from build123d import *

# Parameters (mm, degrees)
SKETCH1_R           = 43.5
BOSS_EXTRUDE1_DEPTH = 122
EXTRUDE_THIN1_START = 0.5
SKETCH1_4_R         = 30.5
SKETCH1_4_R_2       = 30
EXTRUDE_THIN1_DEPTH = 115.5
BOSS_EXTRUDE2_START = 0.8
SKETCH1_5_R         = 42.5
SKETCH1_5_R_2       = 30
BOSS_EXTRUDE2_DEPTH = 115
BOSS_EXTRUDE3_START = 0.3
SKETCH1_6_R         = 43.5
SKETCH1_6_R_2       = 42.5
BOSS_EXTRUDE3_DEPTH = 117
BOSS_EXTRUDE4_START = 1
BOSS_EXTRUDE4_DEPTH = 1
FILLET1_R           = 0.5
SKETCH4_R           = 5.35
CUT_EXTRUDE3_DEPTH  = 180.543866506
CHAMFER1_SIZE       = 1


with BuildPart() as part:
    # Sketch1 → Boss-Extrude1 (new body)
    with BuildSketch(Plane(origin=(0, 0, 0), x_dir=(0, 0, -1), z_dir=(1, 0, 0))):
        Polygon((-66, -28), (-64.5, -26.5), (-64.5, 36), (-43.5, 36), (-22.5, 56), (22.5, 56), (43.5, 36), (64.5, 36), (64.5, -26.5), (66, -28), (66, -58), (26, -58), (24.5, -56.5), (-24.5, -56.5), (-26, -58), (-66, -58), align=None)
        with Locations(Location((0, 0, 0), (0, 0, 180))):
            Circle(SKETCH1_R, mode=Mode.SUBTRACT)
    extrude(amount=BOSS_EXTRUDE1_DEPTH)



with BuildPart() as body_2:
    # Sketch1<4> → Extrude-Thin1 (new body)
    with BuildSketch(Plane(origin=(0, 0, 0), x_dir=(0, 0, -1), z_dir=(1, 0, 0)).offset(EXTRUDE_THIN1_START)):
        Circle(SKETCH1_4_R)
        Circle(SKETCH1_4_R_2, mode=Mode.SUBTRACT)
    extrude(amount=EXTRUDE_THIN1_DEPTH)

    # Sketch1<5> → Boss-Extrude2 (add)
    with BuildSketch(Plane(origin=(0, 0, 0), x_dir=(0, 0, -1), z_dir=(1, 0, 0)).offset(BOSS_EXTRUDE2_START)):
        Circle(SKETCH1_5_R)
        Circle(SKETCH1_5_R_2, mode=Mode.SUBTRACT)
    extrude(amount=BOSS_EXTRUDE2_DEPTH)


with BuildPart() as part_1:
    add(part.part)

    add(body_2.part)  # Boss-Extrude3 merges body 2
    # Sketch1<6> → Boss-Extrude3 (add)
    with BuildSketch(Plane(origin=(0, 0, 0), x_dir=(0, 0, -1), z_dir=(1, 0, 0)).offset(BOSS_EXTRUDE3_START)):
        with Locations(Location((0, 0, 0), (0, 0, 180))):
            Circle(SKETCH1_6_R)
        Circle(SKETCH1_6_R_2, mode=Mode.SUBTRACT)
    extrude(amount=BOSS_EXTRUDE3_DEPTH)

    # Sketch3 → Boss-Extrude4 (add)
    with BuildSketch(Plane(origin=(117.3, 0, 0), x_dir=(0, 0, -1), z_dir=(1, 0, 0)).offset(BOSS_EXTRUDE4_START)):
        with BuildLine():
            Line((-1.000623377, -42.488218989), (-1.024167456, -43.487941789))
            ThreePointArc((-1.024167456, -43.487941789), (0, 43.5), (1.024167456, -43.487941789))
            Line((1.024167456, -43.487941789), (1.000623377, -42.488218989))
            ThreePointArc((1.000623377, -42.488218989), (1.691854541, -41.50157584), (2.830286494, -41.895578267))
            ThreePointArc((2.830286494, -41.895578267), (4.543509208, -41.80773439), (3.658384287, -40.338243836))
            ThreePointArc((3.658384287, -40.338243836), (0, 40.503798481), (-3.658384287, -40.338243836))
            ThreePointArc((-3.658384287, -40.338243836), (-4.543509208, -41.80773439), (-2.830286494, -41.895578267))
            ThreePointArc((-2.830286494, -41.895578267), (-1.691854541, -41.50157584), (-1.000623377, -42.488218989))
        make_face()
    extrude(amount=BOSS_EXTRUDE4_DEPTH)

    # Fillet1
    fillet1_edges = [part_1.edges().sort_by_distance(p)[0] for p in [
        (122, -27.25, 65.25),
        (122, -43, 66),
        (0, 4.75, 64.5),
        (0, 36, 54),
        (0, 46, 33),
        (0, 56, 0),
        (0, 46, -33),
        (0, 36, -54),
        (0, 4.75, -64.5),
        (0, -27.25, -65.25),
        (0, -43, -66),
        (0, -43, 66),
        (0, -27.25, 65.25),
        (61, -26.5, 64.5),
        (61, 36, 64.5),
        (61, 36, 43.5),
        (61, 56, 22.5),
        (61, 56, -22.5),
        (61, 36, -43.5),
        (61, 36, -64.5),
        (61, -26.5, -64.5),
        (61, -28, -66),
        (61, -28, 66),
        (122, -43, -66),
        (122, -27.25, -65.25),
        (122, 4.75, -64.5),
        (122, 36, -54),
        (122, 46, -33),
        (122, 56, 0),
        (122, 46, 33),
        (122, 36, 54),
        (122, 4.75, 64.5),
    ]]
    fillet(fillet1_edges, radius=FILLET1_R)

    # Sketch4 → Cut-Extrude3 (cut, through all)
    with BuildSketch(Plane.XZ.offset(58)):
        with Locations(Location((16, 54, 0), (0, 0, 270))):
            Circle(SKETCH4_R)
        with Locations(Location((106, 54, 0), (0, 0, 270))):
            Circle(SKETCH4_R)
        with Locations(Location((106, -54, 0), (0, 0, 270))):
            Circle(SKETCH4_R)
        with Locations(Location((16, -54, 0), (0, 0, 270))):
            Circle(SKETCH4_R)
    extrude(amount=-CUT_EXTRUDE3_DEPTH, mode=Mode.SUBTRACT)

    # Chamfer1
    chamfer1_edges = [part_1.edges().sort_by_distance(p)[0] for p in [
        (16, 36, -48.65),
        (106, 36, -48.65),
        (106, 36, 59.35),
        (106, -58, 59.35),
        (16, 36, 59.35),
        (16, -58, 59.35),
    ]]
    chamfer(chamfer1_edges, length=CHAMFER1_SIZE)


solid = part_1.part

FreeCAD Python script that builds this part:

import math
import FreeCAD as App
import Part
import Sketcher

V = App.Vector
Q = App.Units.Quantity


def edges_at(feature, points):
    """Names of the edges that pass closest to the given points."""
    edges = feature.Shape.Edges
    near = lambda p: min(range(len(edges)), key=lambda i: edges[i].distToShape(Part.Vertex(*p))[0])
    return sorted({f"Edge{near(p) + 1}" for p in points})

doc = App.newDocument("Part")
body = doc.addObject("PartDesign::Body", "Body")

# Sketch on YZ plane
sketch1 = body.newObject("Sketcher::SketchObject", "Sketch")
sketch1.AttachmentSupport = (doc.getObject("YZ_Plane"), [""])
sketch1.MapMode = "FlatFace"
sketch1.addGeometry([
    Part.LineSegment(V(-26.5, 64.5, 0), V(-28, 66, 0)),  # 0
    Part.LineSegment(V(-28, 66, 0), V(-58, 66, 0)),  # 1
    Part.LineSegment(V(-58, 66, 0), V(-58, 26, 0)),  # 2
    Part.LineSegment(V(-58, 26, 0), V(-56.5, 24.5, 0)),  # 3
    Part.LineSegment(V(-56.5, 24.5, 0), V(-56.5, -24.5, 0)),  # 4
    Part.LineSegment(V(-56.5, -24.5, 0), V(-58, -26, 0)),  # 5
    Part.LineSegment(V(-58, -26, 0), V(-58, -66, 0)),  # 6
    Part.LineSegment(V(-58, -66, 0), V(-28, -66, 0)),  # 7
    Part.LineSegment(V(-28, -66, 0), V(-26.5, -64.5, 0)),  # 8
    Part.LineSegment(V(-26.5, -64.5, 0), V(36, -64.5, 0)),  # 9
    Part.LineSegment(V(36, -64.5, 0), V(36, -43.5, 0)),  # 10
    Part.LineSegment(V(36, -43.5, 0), V(56, -22.5, 0)),  # 11
    Part.LineSegment(V(56, -22.5, 0), V(56, 22.5, 0)),  # 12
    Part.LineSegment(V(56, 22.5, 0), V(36, 43.5, 0)),  # 13
    Part.LineSegment(V(36, 43.5, 0), V(36, 64.5, 0)),  # 14
    Part.LineSegment(V(36, 64.5, 0), V(-26.5, 64.5, 0)),  # 15
    Part.Circle(V(0, 0, 0), V(0, 0, 1), 43.5),  # 16
], False)
sketch1.addConstraint([
    Sketcher.Constraint("Coincident", 0, 2, 1, 1),
    Sketcher.Constraint("Coincident", 1, 2, 2, 1),
    Sketcher.Constraint("Coincident", 2, 2, 3, 1),
    Sketcher.Constraint("Coincident", 3, 2, 4, 1),
    Sketcher.Constraint("Coincident", 4, 2, 5, 1),
    Sketcher.Constraint("Coincident", 5, 2, 6, 1),
    Sketcher.Constraint("Coincident", 6, 2, 7, 1),
    Sketcher.Constraint("Coincident", 7, 2, 8, 1),
    Sketcher.Constraint("Coincident", 8, 2, 9, 1),
    Sketcher.Constraint("Coincident", 9, 2, 10, 1),
    Sketcher.Constraint("Coincident", 10, 2, 11, 1),
    Sketcher.Constraint("Coincident", 11, 2, 12, 1),
    Sketcher.Constraint("Coincident", 12, 2, 13, 1),
    Sketcher.Constraint("Coincident", 13, 2, 14, 1),
    Sketcher.Constraint("Coincident", 14, 2, 15, 1),
    Sketcher.Constraint("Coincident", 15, 2, 0, 1),
    Sketcher.Constraint("Horizontal", 1),
    Sketcher.Constraint("Vertical", 2),
    Sketcher.Constraint("Vertical", 4),
    Sketcher.Constraint("Vertical", 6),
    Sketcher.Constraint("Horizontal", 7),
    Sketcher.Constraint("Horizontal", 9),
    Sketcher.Constraint("Vertical", 10),
    Sketcher.Constraint("Vertical", 12),
    Sketcher.Constraint("Vertical", 14),
    Sketcher.Constraint("Horizontal", 15),
    Sketcher.Constraint("Coincident", 16, 3, -1, 1),
    Sketcher.Constraint("Symmetric", 2, 2, 5, 2, -1),
    Sketcher.Constraint("Symmetric", 0, 2, 7, 2, -1),
    Sketcher.Constraint("Symmetric", 10, 2, 13, 2, -1),
    Sketcher.Constraint("Symmetric", 8, 2, 15, 2, -1),
    Sketcher.Constraint("Parallel", 0, 3),
    Sketcher.Constraint("Perpendicular", 3, 5),
    Sketcher.Constraint("Parallel", 5, 8),
    Sketcher.Constraint("Equal", 0, 3),
    Sketcher.Constraint("Equal", 11, 13),
    Sketcher.Constraint("Diameter", 16, Q("87 mm")),
    Sketcher.Constraint("DistanceX", 1, 2, 1, 1, Q("30 mm")),
    Sketcher.Constraint("DistanceY", 2, 2, 2, 1, Q("40 mm")),
    Sketcher.Constraint("DistanceY", 4, 2, 4, 1, Q("49 mm")),
    Sketcher.Constraint("DistanceY", 10, 1, 10, 2, Q("21 mm")),
    Sketcher.Constraint("DistanceY", 12, 1, 12, 2, Q("45 mm")),
    Sketcher.Constraint("Distance", 11, Q("29 mm")),
    Sketcher.Constraint("DistanceX", 9, 1, 9, 2, Q("62.5 mm")),
    Sketcher.Constraint("DistanceX", 0, 2, -1, 1, Q("28 mm")),
    Sketcher.Constraint("DistanceY", -1, 1, 0, 2, Q("66 mm")),
])
pad1 = body.newObject("PartDesign::Pad", "Pad")
pad1.Profile = sketch1
pad1.Length = 122
body2 = doc.addObject("PartDesign::Body", "Body001")

# Sketch on YZ plane
sketch2 = body2.newObject("Sketcher::SketchObject", "Sketch001")
sketch2.AttachmentSupport = (doc.getObject("YZ_Plane001"), [""])
sketch2.MapMode = "FlatFace"
sketch2.AttachmentOffset = App.Placement(V(0, 0, 0.5), App.Rotation())
sketch2.addGeometry([
    Part.Circle(V(0, 0, 0), V(0, 0, 1), 30),
    Part.Circle(V(0, 0, 0), V(0, 0, 1), 30),
], False)
sketch2.addConstraint([
    Sketcher.Constraint("Coincident", 0, 3, -1, 1),
    Sketcher.Constraint("Coincident", 1, 3, -1, 1),
    Sketcher.Constraint("Diameter", 0, Q("61 mm")),
    Sketcher.Constraint("Diameter", 1, Q("60 mm")),
])
pad2 = body2.newObject("PartDesign::Pad", "Pad001")
pad2.Profile = sketch2
pad2.Length = 115.5

# Sketch on YZ plane
sketch3 = body2.newObject("Sketcher::SketchObject", "Sketch002")
sketch3.AttachmentSupport = (doc.getObject("YZ_Plane001"), [""])
sketch3.MapMode = "FlatFace"
sketch3.AttachmentOffset = App.Placement(V(0, 0, 0.8), App.Rotation())
sketch3.addGeometry([
    Part.Circle(V(0, 0, 0), V(0, 0, 1), 42),
    Part.Circle(V(0, 0, 0), V(0, 0, 1), 30),
], False)
sketch3.addConstraint([
    Sketcher.Constraint("Coincident", 0, 3, -1, 1),
    Sketcher.Constraint("Coincident", 1, 3, -1, 1),
    Sketcher.Constraint("Diameter", 0, Q("85 mm")),
    Sketcher.Constraint("Diameter", 1, Q("60 mm")),
])
pad3 = body2.newObject("PartDesign::Pad", "Pad002")
pad3.Profile = sketch3
pad3.Length = 115
body.AllowCompound = True
doc.recompute()

boolean = body.newObject("PartDesign::Boolean", "Boolean")
boolean.Type = "Fuse"
boolean.addObjects([body2])

# Sketch on YZ plane
sketch4 = body.newObject("Sketcher::SketchObject", "Sketch003")
sketch4.AttachmentSupport = (doc.getObject("YZ_Plane"), [""])
sketch4.MapMode = "FlatFace"
sketch4.AttachmentOffset = App.Placement(V(0, 0, 0.3), App.Rotation())
sketch4.addGeometry([
    Part.Circle(V(0, 0, 0), V(0, 0, 1), 44),
    Part.Circle(V(0, 0, 0), V(0, 0, 1), 42),
], False)
sketch4.addConstraint([
    Sketcher.Constraint("Coincident", 0, 3, -1, 1),
    Sketcher.Constraint("Coincident", 1, 3, -1, 1),
    Sketcher.Constraint("Diameter", 0, Q("87 mm")),
    Sketcher.Constraint("Diameter", 1, Q("85 mm")),
])
pad4 = body.newObject("PartDesign::Pad", "Pad003")
pad4.Profile = sketch4
pad4.Length = 117

# Sketch on YZ plane
sketch5 = body.newObject("Sketcher::SketchObject", "Sketch004")
sketch5.AttachmentSupport = (doc.getObject("YZ_Plane"), [""])
sketch5.MapMode = "FlatFace"
sketch5.AttachmentOffset = App.Placement(V(0, 0, 118.3), App.Rotation())
sketch5.addGeometry([
    Part.LineSegment(V(-43.5, 1, 0), V(-42.5, 1, 0)),  # 0
    Part.ArcOfCircle(Part.Circle(V(-42.5, 2, 0), V(0, 0, 1), 1), math.radians(-92), math.radians(56)),  # 1
    Part.ArcOfCircle(Part.Circle(V(-41.3, 3.7, 0), V(0, 0, 1), 1), math.radians(0), math.radians(236)),  # 2
    Part.ArcOfCircle(Part.Circle(V(0, 0, 0), V(0, 0, 1), 40.5), math.radians(-175), math.radians(175)),  # 3
    Part.ArcOfCircle(Part.Circle(V(-41.3, -3.7, 0), V(0, 0, 1), 1), math.radians(124), math.radians(360)),  # 4
    Part.ArcOfCircle(Part.Circle(V(-42.5, -2, 0), V(0, 0, 1), 1), math.radians(-56), math.radians(92)),  # 5
    Part.LineSegment(V(-42.5, -1, 0), V(-43.5, -1, 0)),  # 6
    Part.ArcOfCircle(Part.Circle(V(0, 0, 0), V(0, 0, 1), 43.5), math.radians(-179), math.radians(179)),  # 7
], False)
sketch5.addConstraint([
    Sketcher.Constraint("Coincident", 0, 2, 1, 1),
    Sketcher.Constraint("Tangent", 1, 2, 2, 2),
    Sketcher.Constraint("Coincident", 2, 1, 3, 2),
    Sketcher.Constraint("Coincident", 3, 1, 4, 2),
    Sketcher.Constraint("Tangent", 4, 1, 5, 1),
    Sketcher.Constraint("Coincident", 5, 2, 6, 1),
    Sketcher.Constraint("Coincident", 6, 2, 7, 1),
    Sketcher.Constraint("Coincident", 7, 2, 0, 1),
    Sketcher.Constraint("Coincident", 3, 3, -1, 1),
    Sketcher.Constraint("Coincident", 7, 3, -1, 1),
    Sketcher.Constraint("Equal", 1, 2),
    Sketcher.Constraint("Equal", 2, 4),
    Sketcher.Constraint("Equal", 4, 5),
    Sketcher.Constraint("Symmetric", 2, 3, 4, 3, -1),
    Sketcher.Constraint("Symmetric", 0, 2, 5, 2, -1),
    Sketcher.Constraint("Vertical", 6, 2, 7, 2),
    Sketcher.Constraint("Radius", 1, Q("1 mm")),
    Sketcher.Constraint("Radius", 7, Q("43.5 mm")),
    Sketcher.Constraint("Distance", 0, Q("1 mm")),
    Sketcher.Constraint("DistanceY", -1, 1, 1, 3, Q("2 mm")),
    Sketcher.Constraint("Radius", 3, Q("40.503798 mm")),
    Sketcher.Constraint("DistanceX", 2, 3, -1, 1, Q("41.338241 mm")),
    Sketcher.Constraint("DistanceX", 1, 2, -1, 1, Q("41.895578 mm")),
    Sketcher.Constraint("DistanceX", 6, 2, -1, 1, Q("43.487942 mm")),
])
pad5 = body.newObject("PartDesign::Pad", "Pad004")
pad5.Profile = sketch5
pad5.Length = 1
doc.recompute()

fillet = body.newObject("PartDesign::Fillet", "Fillet")
fillet.Base = (pad5, edges_at(pad5, [
    (122, -27.25, 65.25),
    (122, -43, 66),
    (0, 4.75, 64.5),
    (0, 36, 54),
    (0, 46, 33),
    (0, 56, 0),
    (0, 46, -33),
    (0, 36, -54),
    (0, 4.75, -64.5),
    (0, -27.25, -65.25),
    (0, -43, -66),
    (0, -43, 66),
    (0, -27.25, 65.25),
    (61, -26.5, 64.5),
    (61, 36, 64.5),
    (61, 36, 43.5),
    (61, 56, 22.5),
    (61, 56, -22.5),
    (61, 36, -43.5),
    (61, 36, -64.5),
    (61, -26.5, -64.5),
    (61, -28, -66),
    (61, -28, 66),
    (122, -43, -66),
    (122, -27.25, -65.25),
    (122, 4.75, -64.5),
    (122, 36, -54),
    (122, 46, -33),
    (122, 56, 0),
    (122, 46, 33),
    (122, 36, 54),
    (122, 4.75, 64.5),
]))
fillet.Radius = 0.5

# Sketch on XZ plane
sketch6 = body.newObject("Sketcher::SketchObject", "Sketch005")
sketch6.AttachmentSupport = (doc.getObject("XZ_Plane"), [""])
sketch6.MapMode = "FlatFace"
sketch6.AttachmentOffset = App.Placement(V(0, 0, 58), App.Rotation())
sketch6.addGeometry([
    Part.Circle(V(16, 54, 0), V(0, 0, 1), 5),
    Part.Circle(V(106, 54, 0), V(0, 0, 1), 5),
    Part.Circle(V(106, -54, 0), V(0, 0, 1), 5),
    Part.Circle(V(16, -54, 0), V(0, 0, 1), 5),
], False)
sketch6.addConstraint([
    Sketcher.Constraint("Equal", 0, 1),
    Sketcher.Constraint("Equal", 1, 2),
    Sketcher.Constraint("Equal", 2, 3),
    Sketcher.Constraint("Symmetric", 1, 3, 2, 3, -1),
    Sketcher.Constraint("Symmetric", 0, 3, 3, 3, -1),
    Sketcher.Constraint("Horizontal", 0, 3, 1, 3),
    Sketcher.Constraint("Diameter", 0, Q("10.7 mm")),
    Sketcher.Constraint("DistanceX", -1, 1, 0, 3, Q("16 mm")),
    Sketcher.Constraint("DistanceY", -1, 1, 0, 3, Q("54 mm")),
    Sketcher.Constraint("DistanceX", -1, 1, 1, 3, Q("106 mm")),
])
pocket1 = body.newObject("PartDesign::Pocket", "Pocket")
pocket1.Profile = sketch6
pocket1.Type = "ThroughAll"
doc.recompute()

chamfer = body.newObject("PartDesign::Chamfer", "Chamfer")
chamfer.Base = (pocket1, edges_at(pocket1, [
    (16, 36, -48.65),
    (106, 36, -48.65),
    (106, 36, 59.35),
    (106, -58, 59.35),
    (16, 36, 59.35),
    (16, -58, 59.35),
]))
chamfer.Size = 1

doc.recompute()
